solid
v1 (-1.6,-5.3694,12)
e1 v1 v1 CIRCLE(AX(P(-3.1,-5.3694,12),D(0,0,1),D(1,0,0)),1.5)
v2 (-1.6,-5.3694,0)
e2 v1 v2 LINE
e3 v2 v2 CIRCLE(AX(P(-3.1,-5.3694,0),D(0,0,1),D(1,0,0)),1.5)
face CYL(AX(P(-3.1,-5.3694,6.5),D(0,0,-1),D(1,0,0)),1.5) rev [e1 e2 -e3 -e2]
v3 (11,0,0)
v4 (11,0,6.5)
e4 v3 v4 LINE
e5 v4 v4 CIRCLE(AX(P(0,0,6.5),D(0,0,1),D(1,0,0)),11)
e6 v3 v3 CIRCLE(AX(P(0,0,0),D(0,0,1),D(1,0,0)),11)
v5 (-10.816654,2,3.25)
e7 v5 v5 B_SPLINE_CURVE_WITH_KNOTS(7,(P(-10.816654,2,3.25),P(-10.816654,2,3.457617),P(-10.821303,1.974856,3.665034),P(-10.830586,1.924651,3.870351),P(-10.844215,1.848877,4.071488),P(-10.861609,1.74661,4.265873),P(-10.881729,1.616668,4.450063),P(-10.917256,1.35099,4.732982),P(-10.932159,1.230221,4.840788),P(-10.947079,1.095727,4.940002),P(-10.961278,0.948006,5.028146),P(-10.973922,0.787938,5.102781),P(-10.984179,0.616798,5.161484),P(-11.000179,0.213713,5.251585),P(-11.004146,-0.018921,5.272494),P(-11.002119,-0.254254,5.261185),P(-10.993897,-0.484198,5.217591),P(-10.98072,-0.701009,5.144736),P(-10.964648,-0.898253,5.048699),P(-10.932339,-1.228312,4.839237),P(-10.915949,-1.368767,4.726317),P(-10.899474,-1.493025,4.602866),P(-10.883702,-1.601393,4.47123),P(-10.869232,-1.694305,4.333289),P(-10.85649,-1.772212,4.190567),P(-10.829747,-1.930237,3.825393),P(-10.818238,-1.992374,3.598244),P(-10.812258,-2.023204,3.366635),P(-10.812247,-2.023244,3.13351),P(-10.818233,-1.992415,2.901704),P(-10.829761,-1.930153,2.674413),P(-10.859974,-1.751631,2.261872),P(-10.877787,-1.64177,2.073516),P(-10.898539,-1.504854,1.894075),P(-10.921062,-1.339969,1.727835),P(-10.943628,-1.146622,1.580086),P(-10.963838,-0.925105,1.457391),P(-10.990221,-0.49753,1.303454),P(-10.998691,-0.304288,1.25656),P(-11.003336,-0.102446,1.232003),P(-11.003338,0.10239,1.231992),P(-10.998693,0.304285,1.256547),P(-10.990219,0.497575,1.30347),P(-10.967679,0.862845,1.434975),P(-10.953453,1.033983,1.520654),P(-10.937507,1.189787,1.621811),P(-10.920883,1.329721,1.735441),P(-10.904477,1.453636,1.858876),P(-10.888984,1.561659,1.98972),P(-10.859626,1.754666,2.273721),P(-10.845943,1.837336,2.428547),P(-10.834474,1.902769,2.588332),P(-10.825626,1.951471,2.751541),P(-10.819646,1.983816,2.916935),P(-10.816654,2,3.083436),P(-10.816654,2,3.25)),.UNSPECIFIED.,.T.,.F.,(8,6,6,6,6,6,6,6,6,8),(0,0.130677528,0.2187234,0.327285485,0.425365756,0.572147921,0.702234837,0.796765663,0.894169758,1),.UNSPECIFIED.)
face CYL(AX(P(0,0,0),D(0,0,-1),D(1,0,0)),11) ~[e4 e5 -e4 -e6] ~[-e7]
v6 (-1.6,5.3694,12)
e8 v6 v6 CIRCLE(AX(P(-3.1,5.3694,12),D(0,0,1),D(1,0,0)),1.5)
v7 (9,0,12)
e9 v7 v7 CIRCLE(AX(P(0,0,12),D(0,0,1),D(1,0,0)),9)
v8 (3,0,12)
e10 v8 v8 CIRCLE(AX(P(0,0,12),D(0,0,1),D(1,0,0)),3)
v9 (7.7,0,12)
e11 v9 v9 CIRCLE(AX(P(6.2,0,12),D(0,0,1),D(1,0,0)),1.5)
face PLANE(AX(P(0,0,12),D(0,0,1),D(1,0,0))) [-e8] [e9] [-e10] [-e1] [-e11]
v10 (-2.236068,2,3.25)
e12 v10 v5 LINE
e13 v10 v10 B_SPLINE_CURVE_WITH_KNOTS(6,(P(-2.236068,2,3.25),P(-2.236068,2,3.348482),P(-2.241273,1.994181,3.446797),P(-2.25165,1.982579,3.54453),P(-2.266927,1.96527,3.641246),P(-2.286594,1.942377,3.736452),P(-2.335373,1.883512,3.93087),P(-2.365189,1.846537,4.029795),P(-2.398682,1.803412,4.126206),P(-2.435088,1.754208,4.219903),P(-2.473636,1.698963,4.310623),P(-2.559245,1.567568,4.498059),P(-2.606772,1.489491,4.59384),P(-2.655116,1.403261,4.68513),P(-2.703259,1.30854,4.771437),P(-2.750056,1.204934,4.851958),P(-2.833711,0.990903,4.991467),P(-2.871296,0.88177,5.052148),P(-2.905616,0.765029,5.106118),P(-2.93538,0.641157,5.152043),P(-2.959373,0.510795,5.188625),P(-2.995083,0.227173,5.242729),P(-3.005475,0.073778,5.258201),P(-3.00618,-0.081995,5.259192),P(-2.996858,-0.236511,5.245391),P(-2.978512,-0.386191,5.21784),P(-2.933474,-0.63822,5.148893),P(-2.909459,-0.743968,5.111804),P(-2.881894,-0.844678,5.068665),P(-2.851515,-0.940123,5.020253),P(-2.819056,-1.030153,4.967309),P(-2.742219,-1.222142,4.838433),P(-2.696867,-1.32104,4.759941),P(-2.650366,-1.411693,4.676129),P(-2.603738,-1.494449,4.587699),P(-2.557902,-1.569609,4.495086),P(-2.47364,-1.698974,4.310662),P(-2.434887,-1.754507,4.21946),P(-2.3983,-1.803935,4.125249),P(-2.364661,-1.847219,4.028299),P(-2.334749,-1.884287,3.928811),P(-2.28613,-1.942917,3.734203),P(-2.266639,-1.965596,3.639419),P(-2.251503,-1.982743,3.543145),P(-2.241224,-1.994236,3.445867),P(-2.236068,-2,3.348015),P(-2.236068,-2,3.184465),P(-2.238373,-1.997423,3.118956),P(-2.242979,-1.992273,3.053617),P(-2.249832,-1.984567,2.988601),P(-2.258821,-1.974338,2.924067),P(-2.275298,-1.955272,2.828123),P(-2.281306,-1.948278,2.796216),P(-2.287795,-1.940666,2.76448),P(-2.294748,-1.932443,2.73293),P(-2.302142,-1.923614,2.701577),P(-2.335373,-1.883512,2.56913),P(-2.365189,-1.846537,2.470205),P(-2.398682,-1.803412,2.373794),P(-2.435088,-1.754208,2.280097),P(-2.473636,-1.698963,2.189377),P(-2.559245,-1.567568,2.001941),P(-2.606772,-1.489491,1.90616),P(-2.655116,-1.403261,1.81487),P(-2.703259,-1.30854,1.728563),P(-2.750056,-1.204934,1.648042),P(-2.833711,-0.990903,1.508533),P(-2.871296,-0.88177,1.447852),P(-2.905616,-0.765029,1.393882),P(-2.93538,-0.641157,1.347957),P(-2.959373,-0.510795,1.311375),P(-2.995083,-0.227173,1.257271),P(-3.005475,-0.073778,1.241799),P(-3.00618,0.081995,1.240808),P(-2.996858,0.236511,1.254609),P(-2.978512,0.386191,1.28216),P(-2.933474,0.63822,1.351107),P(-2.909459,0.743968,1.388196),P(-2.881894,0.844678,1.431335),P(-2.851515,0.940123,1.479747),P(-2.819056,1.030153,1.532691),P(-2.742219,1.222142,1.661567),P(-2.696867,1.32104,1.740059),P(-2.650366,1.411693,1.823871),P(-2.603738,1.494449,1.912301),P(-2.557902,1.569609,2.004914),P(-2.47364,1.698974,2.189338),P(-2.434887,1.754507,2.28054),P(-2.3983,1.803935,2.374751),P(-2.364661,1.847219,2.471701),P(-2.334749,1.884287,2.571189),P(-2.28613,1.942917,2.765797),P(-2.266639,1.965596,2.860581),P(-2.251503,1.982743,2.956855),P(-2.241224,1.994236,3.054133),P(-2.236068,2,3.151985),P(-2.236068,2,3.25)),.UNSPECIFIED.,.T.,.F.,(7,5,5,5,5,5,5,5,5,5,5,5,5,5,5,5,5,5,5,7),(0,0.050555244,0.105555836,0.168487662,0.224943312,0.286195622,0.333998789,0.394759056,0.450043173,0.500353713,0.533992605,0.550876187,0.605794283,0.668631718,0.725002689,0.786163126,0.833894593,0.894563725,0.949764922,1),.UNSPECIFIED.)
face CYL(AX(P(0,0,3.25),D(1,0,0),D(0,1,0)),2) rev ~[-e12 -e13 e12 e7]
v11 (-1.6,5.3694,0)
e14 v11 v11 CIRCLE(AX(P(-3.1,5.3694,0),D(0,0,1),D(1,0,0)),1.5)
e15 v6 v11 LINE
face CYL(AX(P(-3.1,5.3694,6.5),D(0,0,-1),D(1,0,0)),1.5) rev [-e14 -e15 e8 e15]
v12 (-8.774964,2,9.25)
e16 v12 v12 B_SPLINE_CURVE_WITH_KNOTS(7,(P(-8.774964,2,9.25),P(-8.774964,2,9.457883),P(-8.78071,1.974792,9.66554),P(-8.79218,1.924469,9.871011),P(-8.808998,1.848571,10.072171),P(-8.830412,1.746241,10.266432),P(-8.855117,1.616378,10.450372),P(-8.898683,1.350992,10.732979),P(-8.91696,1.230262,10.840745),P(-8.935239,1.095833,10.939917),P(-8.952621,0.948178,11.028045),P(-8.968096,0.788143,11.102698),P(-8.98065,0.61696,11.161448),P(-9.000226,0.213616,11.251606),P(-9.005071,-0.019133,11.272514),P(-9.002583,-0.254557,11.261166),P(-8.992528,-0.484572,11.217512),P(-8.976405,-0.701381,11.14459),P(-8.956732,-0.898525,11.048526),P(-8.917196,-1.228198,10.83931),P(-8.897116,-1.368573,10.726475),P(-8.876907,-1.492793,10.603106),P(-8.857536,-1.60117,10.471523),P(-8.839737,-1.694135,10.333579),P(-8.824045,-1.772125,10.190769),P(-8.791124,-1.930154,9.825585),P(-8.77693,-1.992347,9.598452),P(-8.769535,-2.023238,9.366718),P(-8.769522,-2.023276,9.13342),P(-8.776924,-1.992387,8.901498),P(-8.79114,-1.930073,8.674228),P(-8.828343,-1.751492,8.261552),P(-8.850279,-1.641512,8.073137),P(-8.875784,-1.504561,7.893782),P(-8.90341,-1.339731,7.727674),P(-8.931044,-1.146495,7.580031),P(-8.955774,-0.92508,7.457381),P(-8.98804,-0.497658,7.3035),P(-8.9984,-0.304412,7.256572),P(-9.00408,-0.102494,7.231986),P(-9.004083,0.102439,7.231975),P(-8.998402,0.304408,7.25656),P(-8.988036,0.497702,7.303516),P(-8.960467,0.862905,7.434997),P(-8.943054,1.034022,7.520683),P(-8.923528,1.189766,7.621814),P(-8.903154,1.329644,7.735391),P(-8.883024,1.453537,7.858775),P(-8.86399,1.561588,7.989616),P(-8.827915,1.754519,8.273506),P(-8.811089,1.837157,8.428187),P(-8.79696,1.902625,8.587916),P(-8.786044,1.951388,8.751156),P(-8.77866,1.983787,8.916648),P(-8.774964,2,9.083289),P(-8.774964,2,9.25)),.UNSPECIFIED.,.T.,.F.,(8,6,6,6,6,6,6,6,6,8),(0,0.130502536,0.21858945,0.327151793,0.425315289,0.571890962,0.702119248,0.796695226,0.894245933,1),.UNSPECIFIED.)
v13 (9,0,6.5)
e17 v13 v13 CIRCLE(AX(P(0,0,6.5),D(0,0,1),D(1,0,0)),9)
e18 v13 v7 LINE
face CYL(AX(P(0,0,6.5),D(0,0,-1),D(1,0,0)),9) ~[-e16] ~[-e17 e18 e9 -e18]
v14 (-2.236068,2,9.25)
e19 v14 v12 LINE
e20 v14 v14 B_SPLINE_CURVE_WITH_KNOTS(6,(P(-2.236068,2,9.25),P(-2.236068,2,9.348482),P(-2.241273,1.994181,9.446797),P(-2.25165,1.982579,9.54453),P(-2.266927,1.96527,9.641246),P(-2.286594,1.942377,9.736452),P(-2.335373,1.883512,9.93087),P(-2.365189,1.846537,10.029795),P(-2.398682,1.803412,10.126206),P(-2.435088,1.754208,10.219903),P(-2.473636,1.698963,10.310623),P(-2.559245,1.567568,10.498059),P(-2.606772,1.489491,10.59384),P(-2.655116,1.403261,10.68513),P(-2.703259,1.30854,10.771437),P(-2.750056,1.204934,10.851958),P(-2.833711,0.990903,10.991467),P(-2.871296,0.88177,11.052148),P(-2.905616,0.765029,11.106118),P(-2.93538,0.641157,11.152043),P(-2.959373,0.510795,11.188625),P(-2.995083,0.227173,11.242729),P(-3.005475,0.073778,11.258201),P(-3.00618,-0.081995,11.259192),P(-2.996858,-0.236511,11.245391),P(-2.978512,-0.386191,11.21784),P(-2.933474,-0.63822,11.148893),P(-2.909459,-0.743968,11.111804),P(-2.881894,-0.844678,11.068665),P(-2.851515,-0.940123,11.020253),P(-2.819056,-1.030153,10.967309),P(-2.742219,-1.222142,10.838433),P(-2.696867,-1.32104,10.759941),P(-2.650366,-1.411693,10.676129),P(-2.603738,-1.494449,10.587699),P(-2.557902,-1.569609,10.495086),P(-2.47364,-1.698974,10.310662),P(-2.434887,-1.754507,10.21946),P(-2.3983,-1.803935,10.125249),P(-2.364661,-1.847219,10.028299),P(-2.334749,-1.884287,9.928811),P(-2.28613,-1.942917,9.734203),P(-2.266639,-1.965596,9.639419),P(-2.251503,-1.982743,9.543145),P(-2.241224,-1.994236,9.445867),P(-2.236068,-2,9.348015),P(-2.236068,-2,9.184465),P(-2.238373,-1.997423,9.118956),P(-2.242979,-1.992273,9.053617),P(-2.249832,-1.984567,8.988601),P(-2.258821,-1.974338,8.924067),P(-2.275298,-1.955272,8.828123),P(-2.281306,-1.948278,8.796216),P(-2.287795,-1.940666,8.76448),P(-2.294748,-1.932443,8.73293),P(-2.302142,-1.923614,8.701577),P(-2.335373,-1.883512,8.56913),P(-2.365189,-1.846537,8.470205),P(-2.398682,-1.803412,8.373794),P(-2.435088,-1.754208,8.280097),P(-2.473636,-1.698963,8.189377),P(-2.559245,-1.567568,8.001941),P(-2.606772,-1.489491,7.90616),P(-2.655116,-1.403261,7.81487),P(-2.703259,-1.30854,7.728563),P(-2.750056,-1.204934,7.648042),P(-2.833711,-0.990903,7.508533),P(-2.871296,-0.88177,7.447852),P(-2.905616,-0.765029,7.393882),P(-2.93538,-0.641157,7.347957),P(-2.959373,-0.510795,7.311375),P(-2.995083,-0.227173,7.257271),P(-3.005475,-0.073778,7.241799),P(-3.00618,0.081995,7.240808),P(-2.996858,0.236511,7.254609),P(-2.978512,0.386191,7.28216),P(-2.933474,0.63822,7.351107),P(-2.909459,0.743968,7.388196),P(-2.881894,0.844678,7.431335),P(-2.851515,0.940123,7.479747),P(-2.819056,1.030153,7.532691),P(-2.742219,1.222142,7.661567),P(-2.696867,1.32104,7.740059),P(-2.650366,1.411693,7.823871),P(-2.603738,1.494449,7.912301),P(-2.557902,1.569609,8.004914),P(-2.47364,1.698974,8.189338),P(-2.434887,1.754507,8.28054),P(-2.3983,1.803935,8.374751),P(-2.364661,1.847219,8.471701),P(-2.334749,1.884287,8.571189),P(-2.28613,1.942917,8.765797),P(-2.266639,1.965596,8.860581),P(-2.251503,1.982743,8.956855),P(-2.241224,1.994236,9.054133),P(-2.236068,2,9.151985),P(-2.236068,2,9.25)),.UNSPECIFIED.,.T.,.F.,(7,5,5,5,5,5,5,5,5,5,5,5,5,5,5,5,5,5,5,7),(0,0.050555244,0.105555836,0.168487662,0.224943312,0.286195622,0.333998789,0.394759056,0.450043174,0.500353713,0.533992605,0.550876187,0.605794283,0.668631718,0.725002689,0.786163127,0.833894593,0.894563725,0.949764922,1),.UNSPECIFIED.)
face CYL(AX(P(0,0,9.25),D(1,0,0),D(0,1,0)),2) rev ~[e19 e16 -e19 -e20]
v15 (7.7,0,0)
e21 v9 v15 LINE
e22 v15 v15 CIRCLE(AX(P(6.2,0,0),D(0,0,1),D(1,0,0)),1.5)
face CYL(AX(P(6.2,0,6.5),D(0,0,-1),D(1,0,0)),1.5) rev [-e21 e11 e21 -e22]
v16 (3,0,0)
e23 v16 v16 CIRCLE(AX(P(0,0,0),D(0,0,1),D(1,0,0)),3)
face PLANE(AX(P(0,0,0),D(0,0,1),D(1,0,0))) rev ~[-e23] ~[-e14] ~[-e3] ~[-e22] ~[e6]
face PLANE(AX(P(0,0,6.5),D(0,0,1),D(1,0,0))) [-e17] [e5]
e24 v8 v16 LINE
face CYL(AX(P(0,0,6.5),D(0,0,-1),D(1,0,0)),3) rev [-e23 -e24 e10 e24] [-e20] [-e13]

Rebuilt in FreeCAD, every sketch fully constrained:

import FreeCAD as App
import Part
import Sketcher
from FreeCAD import Vector
Q = App.Units.Quantity

doc = App.newDocument("Part")
params = doc.addObject("Spreadsheet::Sheet", "Params")
for row, (alias, value) in enumerate([
    ("sketch1_diameter", "22 mm"),
    ("sketch1_diameter2", "3 mm"),
    ("sketch1_diameter3", "6 mm"),
    ("pad1_length", "6.5 mm"),
    ("sketch2_diameter", "18 mm"),
    ("sketch2_diameter2", "3 mm"),
    ("sketch2_diameter3", "6 mm"),
    ("pad2_length", "5.5 mm"),
    ("sketch3_diameter", "4 mm"),
], start=1):
    params.set(f"A{row}", alias)
    params.set(f"B{row}", "=" + value)
    params.setAlias(f"B{row}", alias)

body = doc.addObject("PartDesign::Body", "Body")

sketch1 = body.newObject("Sketcher::SketchObject", "Sketch")
sketch1.AttachmentSupport = (doc.getObject("XY_Plane"), [""])
sketch1.MapMode = "FlatFace"
sketch1.addGeometry(Part.Circle(Vector(0, 0, 0), Vector(0, 0, 1), 11), False)
sketch1.addGeometry(Part.Circle(Vector(-3.1, -5.4, 0), Vector(0, 0, 1), 1.5), False)
sketch1.addGeometry(Part.Circle(Vector(-3.1, 5.4, 0), Vector(0, 0, 1), 1.5), False)
sketch1.addGeometry(Part.Circle(Vector(0, 0, 0), Vector(0, 0, 1), 3), False)
sketch1.addGeometry(Part.Circle(Vector(6.2, 0, 0), Vector(0, 0, 1), 1.5), False)
sketch1.addConstraint(Sketcher.Constraint("Coincident", 0, 3, -1, 1))
sketch1.addConstraint(Sketcher.Constraint("Coincident", 3, 3, -1, 1))
sketch1.addConstraint(Sketcher.Constraint("Equal", 1, 2))
sketch1.addConstraint(Sketcher.Constraint("Equal", 2, 4))
sketch1.addConstraint(Sketcher.Constraint("Symmetric", 1, 3, 2, 3, -1))
sketch1.addConstraint(Sketcher.Constraint("PointOnObject", 4, 3, -1))
sketch1.addConstraint(Sketcher.Constraint("Diameter", 0, Q("22 mm")))
sketch1.addConstraint(Sketcher.Constraint("Diameter", 1, Q("3 mm")))
sketch1.addConstraint(Sketcher.Constraint("Diameter", 3, Q("6 mm")))
sketch1.addConstraint(Sketcher.Constraint("DistanceX", -1, 1, 4, 3, Q("6.2 mm")))
sketch1.addConstraint(Sketcher.Constraint("DistanceX", 1, 3, -1, 1, Q("3.1 mm")))
sketch1.addConstraint(Sketcher.Constraint("DistanceY", 1, 3, -1, 1, Q("5.3694 mm")))
sketch1.setExpression("Constraints[6]", "Params.sketch1_diameter")
sketch1.setExpression("Constraints[7]", "Params.sketch1_diameter2")
sketch1.setExpression("Constraints[8]", "Params.sketch1_diameter3")
pad1 = body.newObject("PartDesign::Pad", "Pad")
pad1.Profile = sketch1
pad1.setExpression("Length", "Params.pad1_length")

sketch2 = body.newObject("Sketcher::SketchObject", "Sketch001")
sketch2.AttachmentSupport = (doc.getObject("XY_Plane"), [""])
sketch2.MapMode = "FlatFace"
sketch2.AttachmentOffset = App.Placement(Vector(0, 0, 6.5), App.Rotation())
sketch2.addGeometry(Part.Circle(Vector(0, 0, 0), Vector(0, 0, 1), 9), False)
sketch2.addGeometry(Part.Circle(Vector(-3.1, -5.4, 0), Vector(0, 0, 1), 1.5), False)
sketch2.addGeometry(Part.Circle(Vector(-3.1, 5.4, 0), Vector(0, 0, 1), 1.5), False)
sketch2.addGeometry(Part.Circle(Vector(0, 0, 0), Vector(0, 0, 1), 3), False)
sketch2.addGeometry(Part.Circle(Vector(6.2, 0, 0), Vector(0, 0, 1), 1.5), False)
sketch2.addConstraint(Sketcher.Constraint("Coincident", 0, 3, -1, 1))
sketch2.addConstraint(Sketcher.Constraint("Coincident", 3, 3, -1, 1))
sketch2.addConstraint(Sketcher.Constraint("Equal", 1, 2))
sketch2.addConstraint(Sketcher.Constraint("Equal", 2, 4))
sketch2.addConstraint(Sketcher.Constraint("Symmetric", 1, 3, 2, 3, -1))
sketch2.addConstraint(Sketcher.Constraint("PointOnObject", 4, 3, -1))
sketch2.addConstraint(Sketcher.Constraint("Diameter", 0, Q("18 mm")))
sketch2.addConstraint(Sketcher.Constraint("Diameter", 1, Q("3 mm")))
sketch2.addConstraint(Sketcher.Constraint("Diameter", 3, Q("6 mm")))
sketch2.addConstraint(Sketcher.Constraint("DistanceX", 1, 3, -1, 1, Q("3.1 mm")))
sketch2.addConstraint(Sketcher.Constraint("DistanceX", -1, 1, 4, 3, Q("6.2 mm")))
sketch2.addConstraint(Sketcher.Constraint("DistanceY", 1, 3, -1, 1, Q("5.3694 mm")))
sketch2.setExpression("Constraints[6]", "Params.sketch2_diameter")
sketch2.setExpression("Constraints[7]", "Params.sketch2_diameter2")
sketch2.setExpression("Constraints[8]", "Params.sketch2_diameter3")
pad2 = body.newObject("PartDesign::Pad", "Pad001")
pad2.Profile = sketch2
pad2.setExpression("Length", "Params.pad2_length")

sketch3 = body.newObject("Sketcher::SketchObject", "Sketch002")
sketch3.AttachmentSupport = (doc.getObject("YZ_Plane"), [""])
sketch3.MapMode = "FlatFace"
sketch3.addGeometry(Part.Circle(Vector(0, 3.2, 0), Vector(0, 0, 1), 2), False)
sketch3.addGeometry(Part.Circle(Vector(0, 9.2, 0), Vector(0, 0, 1), 2), False)
sketch3.addConstraint(Sketcher.Constraint("Equal", 0, 1))
sketch3.addConstraint(Sketcher.Constraint("PointOnObject", 0, 3, -2))
sketch3.addConstraint(Sketcher.Constraint("PointOnObject", 1, 3, -2))
sketch3.addConstraint(Sketcher.Constraint("Diameter", 0, Q("4 mm")))
sketch3.addConstraint(Sketcher.Constraint("DistanceY", 0, 3, 1, 3, Q("6 mm")))
sketch3.addConstraint(Sketcher.Constraint("DistanceY", -1, 1, 0, 3, Q("3.25 mm")))
sketch3.setExpression("Constraints[3]", "Params.sketch3_diameter")
pocket1 = body.newObject("PartDesign::Pocket", "Pocket")
pocket1.Profile = sketch3
pocket1.Type = "ThroughAll"

doc.recompute()
